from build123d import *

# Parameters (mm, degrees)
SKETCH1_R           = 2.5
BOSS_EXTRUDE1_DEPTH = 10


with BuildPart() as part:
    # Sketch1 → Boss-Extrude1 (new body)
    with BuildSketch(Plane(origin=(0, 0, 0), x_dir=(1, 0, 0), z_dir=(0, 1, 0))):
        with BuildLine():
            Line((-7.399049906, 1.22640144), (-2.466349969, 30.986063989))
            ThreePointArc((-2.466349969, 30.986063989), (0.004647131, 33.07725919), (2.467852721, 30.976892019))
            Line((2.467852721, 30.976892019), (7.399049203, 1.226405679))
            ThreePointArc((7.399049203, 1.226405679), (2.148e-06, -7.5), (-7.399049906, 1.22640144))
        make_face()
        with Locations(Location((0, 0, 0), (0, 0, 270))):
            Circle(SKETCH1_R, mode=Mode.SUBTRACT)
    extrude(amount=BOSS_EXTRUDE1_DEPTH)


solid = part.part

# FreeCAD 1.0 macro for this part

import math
import FreeCAD as App
import Part
import Sketcher

V = App.Vector
Q = App.Units.Quantity

doc = App.newDocument("Part")
body = doc.addObject("PartDesign::Body", "Body")

sketch1 = doc.addObject("Sketcher::SketchObject", "Sketch")
body.addObject(sketch1)
sketch1.AttachmentSupport = (doc.XZ_Plane, [""])
sketch1.MapMode = "FlatFace"
sketch1.addGeometry(Part.LineSegment(V(-2.5, -31, 0), V(-7.4, -1.2, 0)), False)
sketch1.addGeometry(Part.ArcOfCircle(Part.Circle(V(0, 0, 0), V(0, 0, 1), 7.5), math.radians(-9), math.radians(189)), False)
sketch1.addGeometry(Part.LineSegment(V(7.4, -1.2, 0), V(2.5, -31, 0)), False)
sketch1.addGeometry(Part.ArcOfCircle(Part.Circle(V(0, -30.6, 0), V(0, 0, 1), 2.5), math.radians(-171), math.radians(-9)), False)
sketch1.addGeometry(Part.Circle(V(0, 0, 0), V(0, 0, 1), 2.5), False)
sketch1.addConstraint(Sketcher.Constraint("Tangent", 0, 2, 1, 2))
sketch1.addConstraint(Sketcher.Constraint("Tangent", 1, 1, 2, 1))
sketch1.addConstraint(Sketcher.Constraint("Coincident", 2, 2, 3, 2))
sketch1.addConstraint(Sketcher.Constraint("Tangent", 3, 1, 0, 1))
sketch1.addConstraint(Sketcher.Constraint("Coincident", 1, 3, -1, 1))
sketch1.addConstraint(Sketcher.Constraint("Coincident", 4, 3, -1, 1))
sketch1.addConstraint(Sketcher.Constraint("Equal", 3, 4))
sketch1.addConstraint(Sketcher.Constraint("PointOnObject", 3, 3, -2))
sketch1.addConstraint(Sketcher.Constraint("Diameter", 4, Q("5 mm")))
sketch1.addConstraint(Sketcher.Constraint("Radius", 1, Q("7.5 mm")))
sketch1.addConstraint(Sketcher.Constraint("DistanceY", 0, 2, -1, 1, Q("1.226401 mm")))
sketch1.addConstraint(Sketcher.Constraint("DistanceY", 2, 2, 3, 3, Q("0.399629 mm")))
pad1 = doc.addObject("PartDesign::Pad", "Pad")
body.addObject(pad1)
pad1.Profile = sketch1
pad1.Length = 10
pad1.Reversed = True

doc.recompute()
